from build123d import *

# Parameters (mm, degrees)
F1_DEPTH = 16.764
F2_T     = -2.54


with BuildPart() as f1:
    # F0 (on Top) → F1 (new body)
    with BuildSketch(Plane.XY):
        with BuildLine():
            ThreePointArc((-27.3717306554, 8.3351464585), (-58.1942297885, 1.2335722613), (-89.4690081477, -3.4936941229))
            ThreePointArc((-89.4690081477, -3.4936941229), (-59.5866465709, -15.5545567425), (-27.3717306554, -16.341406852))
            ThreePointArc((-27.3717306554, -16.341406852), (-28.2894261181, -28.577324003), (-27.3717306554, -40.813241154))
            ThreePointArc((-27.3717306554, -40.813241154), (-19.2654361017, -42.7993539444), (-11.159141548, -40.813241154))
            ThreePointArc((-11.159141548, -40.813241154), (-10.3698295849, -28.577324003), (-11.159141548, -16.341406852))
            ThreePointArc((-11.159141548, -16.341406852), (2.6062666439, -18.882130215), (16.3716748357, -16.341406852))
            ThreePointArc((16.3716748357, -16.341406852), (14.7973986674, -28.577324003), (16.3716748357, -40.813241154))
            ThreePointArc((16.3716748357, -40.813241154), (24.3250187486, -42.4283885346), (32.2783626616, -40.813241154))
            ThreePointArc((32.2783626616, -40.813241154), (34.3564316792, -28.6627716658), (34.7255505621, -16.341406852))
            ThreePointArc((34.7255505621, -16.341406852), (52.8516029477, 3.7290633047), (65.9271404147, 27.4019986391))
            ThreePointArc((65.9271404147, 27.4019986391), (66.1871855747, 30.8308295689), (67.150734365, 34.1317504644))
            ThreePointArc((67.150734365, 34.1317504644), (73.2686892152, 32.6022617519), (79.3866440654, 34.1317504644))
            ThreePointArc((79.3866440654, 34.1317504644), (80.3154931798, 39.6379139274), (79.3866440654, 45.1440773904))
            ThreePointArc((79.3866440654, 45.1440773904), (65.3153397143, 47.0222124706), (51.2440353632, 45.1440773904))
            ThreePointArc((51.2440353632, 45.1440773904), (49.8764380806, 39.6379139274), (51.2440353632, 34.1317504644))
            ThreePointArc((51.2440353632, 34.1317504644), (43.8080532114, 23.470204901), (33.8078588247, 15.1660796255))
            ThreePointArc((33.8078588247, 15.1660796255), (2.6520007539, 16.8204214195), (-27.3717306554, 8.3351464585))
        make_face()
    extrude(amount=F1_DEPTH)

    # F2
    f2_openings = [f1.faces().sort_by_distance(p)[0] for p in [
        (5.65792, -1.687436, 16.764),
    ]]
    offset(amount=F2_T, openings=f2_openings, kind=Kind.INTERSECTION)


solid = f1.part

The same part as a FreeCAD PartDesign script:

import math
import FreeCAD as App
import Part
import Sketcher
from FreeCAD import Vector
Q = App.Units.Quantity


def faces_at(feature, points):
    """Names of the faces that lie closest to the given points."""
    faces = feature.Shape.Faces
    near = lambda p: min(range(len(faces)), key=lambda i: faces[i].distToShape(Part.Vertex(*p))[0])
    return sorted({f"Face{near(p) + 1}" for p in points})

doc = App.newDocument("Part")
body = doc.addObject("PartDesign::Body", "Body")

sketch1 = doc.addObject("Sketcher::SketchObject", "Sketch")
body.addObject(sketch1)
sketch1.AttachmentSupport = (doc.XY_Plane, [""])
sketch1.MapMode = "FlatFace"
sketch1.addGeometry([
    Part.ArcOfCircle(Part.Circle(Vector(-136, 408, 0), Vector(0, 0, 1), 414), math.radians(-83.59), math.radians(-74.84)),
    Part.ArcOfCircle(Part.Circle(Vector(-41, 73, 0), Vector(0, 0, 1), 90), math.radians(-122), math.radians(-81)),
    Part.ArcOfCircle(Part.Circle(Vector(54, -29, 0), Vector(0, 0, 1), 82), math.radians(171.42), math.radians(188.58)),
    Part.ArcOfCircle(Part.Circle(Vector(-19, -25, 0), Vector(0, 0, 1), 18), math.radians(-118), math.radians(-62)),
    Part.ArcOfCircle(Part.Circle(Vector(-106, -29, 0), Vector(0, 0, 1), 95), math.radians(-7.38), math.radians(7.38)),
    Part.ArcOfCircle(Part.Circle(Vector(3, 20, 0), Vector(0, 0, 1), 39), math.radians(-111), math.radians(-69)),
    Part.ArcOfCircle(Part.Circle(Vector(63, -29, 0), Vector(0, 0, 1), 48), math.radians(165), math.radians(195)),
    Part.ArcOfCircle(Part.Circle(Vector(24, -22, 0), Vector(0, 0, 1), 20), math.radians(-113), math.radians(-67)),
    Part.ArcOfCircle(Part.Circle(Vector(-54, -20, 0), Vector(0, 0, 1), 88), math.radians(-13.7), math.radians(2.28)),
    Part.ArcOfCircle(Part.Circle(Vector(-43, 72, 0), Vector(0, 0, 1), 118), math.radians(-49), math.radians(-22)),
    Part.ArcOfCircle(Part.Circle(Vector(82, 28, 0), Vector(0, 0, 1), 17), math.radians(158), math.radians(182)),
    Part.ArcOfCircle(Part.Circle(Vector(73, 46, 0), Vector(0, 0, 1), 13), math.radians(-118), math.radians(-62)),
    Part.ArcOfCircle(Part.Circle(Vector(64, 40, 0), Vector(0, 0, 1), 17), math.radians(-19), math.radians(19)),
    Part.ArcOfCircle(Part.Circle(Vector(65, -7, 0), Vector(0, 0, 1), 54), math.radians(75), math.radians(105)),
    Part.ArcOfCircle(Part.Circle(Vector(62, 40, 0), Vector(0, 0, 1), 12), math.radians(152), math.radians(208)),
    Part.ArcOfCircle(Part.Circle(Vector(8, 56, 0), Vector(0, 0, 1), 49), math.radians(-58), math.radians(-27)),
    Part.ArcOfCircle(Part.Circle(Vector(13, -78, 0), Vector(0, 0, 1), 95), math.radians(78), math.radians(115)),
], False)
sketch1.addConstraint([
    Sketcher.Constraint("Coincident", 0, 1, 1, 1),
    Sketcher.Constraint("Coincident", 1, 2, 2, 1),
    Sketcher.Constraint("Coincident", 2, 2, 3, 1),
    Sketcher.Constraint("Coincident", 3, 2, 4, 1),
    Sketcher.Constraint("Coincident", 4, 2, 5, 1),
    Sketcher.Constraint("Coincident", 5, 2, 6, 1),
    Sketcher.Constraint("Coincident", 6, 2, 7, 1),
    Sketcher.Constraint("Coincident", 7, 2, 8, 1),
    Sketcher.Constraint("Coincident", 8, 2, 9, 1),
    Sketcher.Constraint("Coincident", 9, 2, 10, 2),
    Sketcher.Constraint("Coincident", 10, 1, 11, 1),
    Sketcher.Constraint("Coincident", 11, 2, 12, 1),
    Sketcher.Constraint("Coincident", 12, 2, 13, 1),
    Sketcher.Constraint("Coincident", 13, 2, 14, 1),
    Sketcher.Constraint("Coincident", 14, 2, 15, 2),
    Sketcher.Constraint("Coincident", 15, 1, 16, 1),
    Sketcher.Constraint("Coincident", 16, 2, 0, 2),
    Sketcher.Constraint("Horizontal", 2, 3, 4, 3),
    Sketcher.Constraint("Horizontal", 4, 3, 6, 3),
    Sketcher.Constraint("Horizontal", 12, 3, 14, 3),
    Sketcher.Constraint("Horizontal", 2, 2, 3, 2),
    Sketcher.Constraint("Horizontal", 1, 2, 4, 2),
    Sketcher.Constraint("Horizontal", 4, 2, 5, 2),
    Sketcher.Constraint("Horizontal", 3, 2, 6, 2),
    Sketcher.Constraint("Horizontal", 6, 2, 7, 2),
    Sketcher.Constraint("Horizontal", 5, 2, 8, 2),
    Sketcher.Constraint("Horizontal", 10, 1, 11, 2),
    Sketcher.Constraint("Horizontal", 12, 2, 13, 2),
    Sketcher.Constraint("Horizontal", 11, 2, 14, 2),
    Sketcher.Constraint("Vertical", 1, 2, 2, 2),
    Sketcher.Constraint("Vertical", 11, 2, 12, 2),
    Sketcher.Constraint("Vertical", 2, 2, 16, 2),
    Sketcher.Constraint("Radius", 8, 88.4743),
    Sketcher.Constraint("Radius", 0, 413.925682),
    Sketcher.Constraint("Radius", 2, 82.03148),
    Sketcher.Constraint("Radius", 6, 48.33841),
    Sketcher.Constraint("Radius", 7, 20.389588),
    Sketcher.Constraint("Radius", 13, 53.651359),
    Sketcher.Constraint("Radius", 15, 48.507939),
    Sketcher.Constraint("Radius", 1, 90.197128),
    Sketcher.Constraint("Radius", 3, 17.535926),
    Sketcher.Constraint("Radius", 4, 95.235274),
    Sketcher.Constraint("Radius", 5, 38.560227),
    Sketcher.Constraint("Radius", 9, 117.894435),
    Sketcher.Constraint("Radius", 10, 16.536907),
    Sketcher.Constraint("Radius", 11, 13.000654),
    Sketcher.Constraint("Radius", 12, 16.784533),
    Sketcher.Constraint("Radius", 14, 11.768142),
    Sketcher.Constraint("Radius", 16, 95.409213),
    Sketcher.Constraint("DistanceY", 7, 3, -1, 1, 22.0388),
    Sketcher.Constraint("DistanceY", -1, 1, 9, 2, 27.401999),
    Sketcher.Constraint("DistanceX", 4, 3, 1, 3, 64.292901),
    Sketcher.Constraint("DistanceY", 12, 3, 11, 3, 5.965002),
    Sketcher.Constraint("DistanceY", 0, 1, 9, 3, 75.684),
    Sketcher.Constraint("DistanceX", 13, 3, 9, 2, 0.611801),
    Sketcher.Constraint("DistanceX", 13, 2, 10, 1, 15.906699),
    Sketcher.Constraint("DistanceY", -1, 1, 1, 3, 72.77192),
    Sketcher.Constraint("DistanceX", -1, 1, 6, 3, 63.135809),
    Sketcher.Constraint("DistanceX", -1, 1, 7, 3, 24.325019),
    Sketcher.Constraint("DistanceX", -1, 1, 10, 3, 82.457349),
    Sketcher.Constraint("DistanceY", -1, 1, 10, 3, 27.872611),
    Sketcher.Constraint("DistanceX", -1, 1, 12, 3, 63.53096),
    Sketcher.Constraint("DistanceX", 0, 1, -1, 1, 89.469008),
    Sketcher.Constraint("DistanceX", 1, 2, -1, 1, 27.371731),
    Sketcher.Constraint("DistanceX", 3, 2, -1, 1, 11.159142),
    Sketcher.Constraint("DistanceX", -1, 1, 15, 1, 33.807859),
    Sketcher.Constraint("DistanceY", -1, 1, 15, 1, 15.16608),
    Sketcher.Constraint("DistanceX", 0, 3, 1, 3, 94.337511),
])
pad1 = doc.addObject("PartDesign::Pad", "Pad")
body.addObject(pad1)
pad1.Profile = sketch1
pad1.Length = Q("0.66 in")
doc.recompute()

thickness = doc.addObject("PartDesign::Thickness", "Thickness")
body.addObject(thickness)
thickness.Base = (pad1, faces_at(pad1, [(-4.577, 2.111, 16.764)]))
thickness.Value = Q("0.1 in")
thickness.Reversed = True
thickness.Join = "Intersection"

doc.recompute()
